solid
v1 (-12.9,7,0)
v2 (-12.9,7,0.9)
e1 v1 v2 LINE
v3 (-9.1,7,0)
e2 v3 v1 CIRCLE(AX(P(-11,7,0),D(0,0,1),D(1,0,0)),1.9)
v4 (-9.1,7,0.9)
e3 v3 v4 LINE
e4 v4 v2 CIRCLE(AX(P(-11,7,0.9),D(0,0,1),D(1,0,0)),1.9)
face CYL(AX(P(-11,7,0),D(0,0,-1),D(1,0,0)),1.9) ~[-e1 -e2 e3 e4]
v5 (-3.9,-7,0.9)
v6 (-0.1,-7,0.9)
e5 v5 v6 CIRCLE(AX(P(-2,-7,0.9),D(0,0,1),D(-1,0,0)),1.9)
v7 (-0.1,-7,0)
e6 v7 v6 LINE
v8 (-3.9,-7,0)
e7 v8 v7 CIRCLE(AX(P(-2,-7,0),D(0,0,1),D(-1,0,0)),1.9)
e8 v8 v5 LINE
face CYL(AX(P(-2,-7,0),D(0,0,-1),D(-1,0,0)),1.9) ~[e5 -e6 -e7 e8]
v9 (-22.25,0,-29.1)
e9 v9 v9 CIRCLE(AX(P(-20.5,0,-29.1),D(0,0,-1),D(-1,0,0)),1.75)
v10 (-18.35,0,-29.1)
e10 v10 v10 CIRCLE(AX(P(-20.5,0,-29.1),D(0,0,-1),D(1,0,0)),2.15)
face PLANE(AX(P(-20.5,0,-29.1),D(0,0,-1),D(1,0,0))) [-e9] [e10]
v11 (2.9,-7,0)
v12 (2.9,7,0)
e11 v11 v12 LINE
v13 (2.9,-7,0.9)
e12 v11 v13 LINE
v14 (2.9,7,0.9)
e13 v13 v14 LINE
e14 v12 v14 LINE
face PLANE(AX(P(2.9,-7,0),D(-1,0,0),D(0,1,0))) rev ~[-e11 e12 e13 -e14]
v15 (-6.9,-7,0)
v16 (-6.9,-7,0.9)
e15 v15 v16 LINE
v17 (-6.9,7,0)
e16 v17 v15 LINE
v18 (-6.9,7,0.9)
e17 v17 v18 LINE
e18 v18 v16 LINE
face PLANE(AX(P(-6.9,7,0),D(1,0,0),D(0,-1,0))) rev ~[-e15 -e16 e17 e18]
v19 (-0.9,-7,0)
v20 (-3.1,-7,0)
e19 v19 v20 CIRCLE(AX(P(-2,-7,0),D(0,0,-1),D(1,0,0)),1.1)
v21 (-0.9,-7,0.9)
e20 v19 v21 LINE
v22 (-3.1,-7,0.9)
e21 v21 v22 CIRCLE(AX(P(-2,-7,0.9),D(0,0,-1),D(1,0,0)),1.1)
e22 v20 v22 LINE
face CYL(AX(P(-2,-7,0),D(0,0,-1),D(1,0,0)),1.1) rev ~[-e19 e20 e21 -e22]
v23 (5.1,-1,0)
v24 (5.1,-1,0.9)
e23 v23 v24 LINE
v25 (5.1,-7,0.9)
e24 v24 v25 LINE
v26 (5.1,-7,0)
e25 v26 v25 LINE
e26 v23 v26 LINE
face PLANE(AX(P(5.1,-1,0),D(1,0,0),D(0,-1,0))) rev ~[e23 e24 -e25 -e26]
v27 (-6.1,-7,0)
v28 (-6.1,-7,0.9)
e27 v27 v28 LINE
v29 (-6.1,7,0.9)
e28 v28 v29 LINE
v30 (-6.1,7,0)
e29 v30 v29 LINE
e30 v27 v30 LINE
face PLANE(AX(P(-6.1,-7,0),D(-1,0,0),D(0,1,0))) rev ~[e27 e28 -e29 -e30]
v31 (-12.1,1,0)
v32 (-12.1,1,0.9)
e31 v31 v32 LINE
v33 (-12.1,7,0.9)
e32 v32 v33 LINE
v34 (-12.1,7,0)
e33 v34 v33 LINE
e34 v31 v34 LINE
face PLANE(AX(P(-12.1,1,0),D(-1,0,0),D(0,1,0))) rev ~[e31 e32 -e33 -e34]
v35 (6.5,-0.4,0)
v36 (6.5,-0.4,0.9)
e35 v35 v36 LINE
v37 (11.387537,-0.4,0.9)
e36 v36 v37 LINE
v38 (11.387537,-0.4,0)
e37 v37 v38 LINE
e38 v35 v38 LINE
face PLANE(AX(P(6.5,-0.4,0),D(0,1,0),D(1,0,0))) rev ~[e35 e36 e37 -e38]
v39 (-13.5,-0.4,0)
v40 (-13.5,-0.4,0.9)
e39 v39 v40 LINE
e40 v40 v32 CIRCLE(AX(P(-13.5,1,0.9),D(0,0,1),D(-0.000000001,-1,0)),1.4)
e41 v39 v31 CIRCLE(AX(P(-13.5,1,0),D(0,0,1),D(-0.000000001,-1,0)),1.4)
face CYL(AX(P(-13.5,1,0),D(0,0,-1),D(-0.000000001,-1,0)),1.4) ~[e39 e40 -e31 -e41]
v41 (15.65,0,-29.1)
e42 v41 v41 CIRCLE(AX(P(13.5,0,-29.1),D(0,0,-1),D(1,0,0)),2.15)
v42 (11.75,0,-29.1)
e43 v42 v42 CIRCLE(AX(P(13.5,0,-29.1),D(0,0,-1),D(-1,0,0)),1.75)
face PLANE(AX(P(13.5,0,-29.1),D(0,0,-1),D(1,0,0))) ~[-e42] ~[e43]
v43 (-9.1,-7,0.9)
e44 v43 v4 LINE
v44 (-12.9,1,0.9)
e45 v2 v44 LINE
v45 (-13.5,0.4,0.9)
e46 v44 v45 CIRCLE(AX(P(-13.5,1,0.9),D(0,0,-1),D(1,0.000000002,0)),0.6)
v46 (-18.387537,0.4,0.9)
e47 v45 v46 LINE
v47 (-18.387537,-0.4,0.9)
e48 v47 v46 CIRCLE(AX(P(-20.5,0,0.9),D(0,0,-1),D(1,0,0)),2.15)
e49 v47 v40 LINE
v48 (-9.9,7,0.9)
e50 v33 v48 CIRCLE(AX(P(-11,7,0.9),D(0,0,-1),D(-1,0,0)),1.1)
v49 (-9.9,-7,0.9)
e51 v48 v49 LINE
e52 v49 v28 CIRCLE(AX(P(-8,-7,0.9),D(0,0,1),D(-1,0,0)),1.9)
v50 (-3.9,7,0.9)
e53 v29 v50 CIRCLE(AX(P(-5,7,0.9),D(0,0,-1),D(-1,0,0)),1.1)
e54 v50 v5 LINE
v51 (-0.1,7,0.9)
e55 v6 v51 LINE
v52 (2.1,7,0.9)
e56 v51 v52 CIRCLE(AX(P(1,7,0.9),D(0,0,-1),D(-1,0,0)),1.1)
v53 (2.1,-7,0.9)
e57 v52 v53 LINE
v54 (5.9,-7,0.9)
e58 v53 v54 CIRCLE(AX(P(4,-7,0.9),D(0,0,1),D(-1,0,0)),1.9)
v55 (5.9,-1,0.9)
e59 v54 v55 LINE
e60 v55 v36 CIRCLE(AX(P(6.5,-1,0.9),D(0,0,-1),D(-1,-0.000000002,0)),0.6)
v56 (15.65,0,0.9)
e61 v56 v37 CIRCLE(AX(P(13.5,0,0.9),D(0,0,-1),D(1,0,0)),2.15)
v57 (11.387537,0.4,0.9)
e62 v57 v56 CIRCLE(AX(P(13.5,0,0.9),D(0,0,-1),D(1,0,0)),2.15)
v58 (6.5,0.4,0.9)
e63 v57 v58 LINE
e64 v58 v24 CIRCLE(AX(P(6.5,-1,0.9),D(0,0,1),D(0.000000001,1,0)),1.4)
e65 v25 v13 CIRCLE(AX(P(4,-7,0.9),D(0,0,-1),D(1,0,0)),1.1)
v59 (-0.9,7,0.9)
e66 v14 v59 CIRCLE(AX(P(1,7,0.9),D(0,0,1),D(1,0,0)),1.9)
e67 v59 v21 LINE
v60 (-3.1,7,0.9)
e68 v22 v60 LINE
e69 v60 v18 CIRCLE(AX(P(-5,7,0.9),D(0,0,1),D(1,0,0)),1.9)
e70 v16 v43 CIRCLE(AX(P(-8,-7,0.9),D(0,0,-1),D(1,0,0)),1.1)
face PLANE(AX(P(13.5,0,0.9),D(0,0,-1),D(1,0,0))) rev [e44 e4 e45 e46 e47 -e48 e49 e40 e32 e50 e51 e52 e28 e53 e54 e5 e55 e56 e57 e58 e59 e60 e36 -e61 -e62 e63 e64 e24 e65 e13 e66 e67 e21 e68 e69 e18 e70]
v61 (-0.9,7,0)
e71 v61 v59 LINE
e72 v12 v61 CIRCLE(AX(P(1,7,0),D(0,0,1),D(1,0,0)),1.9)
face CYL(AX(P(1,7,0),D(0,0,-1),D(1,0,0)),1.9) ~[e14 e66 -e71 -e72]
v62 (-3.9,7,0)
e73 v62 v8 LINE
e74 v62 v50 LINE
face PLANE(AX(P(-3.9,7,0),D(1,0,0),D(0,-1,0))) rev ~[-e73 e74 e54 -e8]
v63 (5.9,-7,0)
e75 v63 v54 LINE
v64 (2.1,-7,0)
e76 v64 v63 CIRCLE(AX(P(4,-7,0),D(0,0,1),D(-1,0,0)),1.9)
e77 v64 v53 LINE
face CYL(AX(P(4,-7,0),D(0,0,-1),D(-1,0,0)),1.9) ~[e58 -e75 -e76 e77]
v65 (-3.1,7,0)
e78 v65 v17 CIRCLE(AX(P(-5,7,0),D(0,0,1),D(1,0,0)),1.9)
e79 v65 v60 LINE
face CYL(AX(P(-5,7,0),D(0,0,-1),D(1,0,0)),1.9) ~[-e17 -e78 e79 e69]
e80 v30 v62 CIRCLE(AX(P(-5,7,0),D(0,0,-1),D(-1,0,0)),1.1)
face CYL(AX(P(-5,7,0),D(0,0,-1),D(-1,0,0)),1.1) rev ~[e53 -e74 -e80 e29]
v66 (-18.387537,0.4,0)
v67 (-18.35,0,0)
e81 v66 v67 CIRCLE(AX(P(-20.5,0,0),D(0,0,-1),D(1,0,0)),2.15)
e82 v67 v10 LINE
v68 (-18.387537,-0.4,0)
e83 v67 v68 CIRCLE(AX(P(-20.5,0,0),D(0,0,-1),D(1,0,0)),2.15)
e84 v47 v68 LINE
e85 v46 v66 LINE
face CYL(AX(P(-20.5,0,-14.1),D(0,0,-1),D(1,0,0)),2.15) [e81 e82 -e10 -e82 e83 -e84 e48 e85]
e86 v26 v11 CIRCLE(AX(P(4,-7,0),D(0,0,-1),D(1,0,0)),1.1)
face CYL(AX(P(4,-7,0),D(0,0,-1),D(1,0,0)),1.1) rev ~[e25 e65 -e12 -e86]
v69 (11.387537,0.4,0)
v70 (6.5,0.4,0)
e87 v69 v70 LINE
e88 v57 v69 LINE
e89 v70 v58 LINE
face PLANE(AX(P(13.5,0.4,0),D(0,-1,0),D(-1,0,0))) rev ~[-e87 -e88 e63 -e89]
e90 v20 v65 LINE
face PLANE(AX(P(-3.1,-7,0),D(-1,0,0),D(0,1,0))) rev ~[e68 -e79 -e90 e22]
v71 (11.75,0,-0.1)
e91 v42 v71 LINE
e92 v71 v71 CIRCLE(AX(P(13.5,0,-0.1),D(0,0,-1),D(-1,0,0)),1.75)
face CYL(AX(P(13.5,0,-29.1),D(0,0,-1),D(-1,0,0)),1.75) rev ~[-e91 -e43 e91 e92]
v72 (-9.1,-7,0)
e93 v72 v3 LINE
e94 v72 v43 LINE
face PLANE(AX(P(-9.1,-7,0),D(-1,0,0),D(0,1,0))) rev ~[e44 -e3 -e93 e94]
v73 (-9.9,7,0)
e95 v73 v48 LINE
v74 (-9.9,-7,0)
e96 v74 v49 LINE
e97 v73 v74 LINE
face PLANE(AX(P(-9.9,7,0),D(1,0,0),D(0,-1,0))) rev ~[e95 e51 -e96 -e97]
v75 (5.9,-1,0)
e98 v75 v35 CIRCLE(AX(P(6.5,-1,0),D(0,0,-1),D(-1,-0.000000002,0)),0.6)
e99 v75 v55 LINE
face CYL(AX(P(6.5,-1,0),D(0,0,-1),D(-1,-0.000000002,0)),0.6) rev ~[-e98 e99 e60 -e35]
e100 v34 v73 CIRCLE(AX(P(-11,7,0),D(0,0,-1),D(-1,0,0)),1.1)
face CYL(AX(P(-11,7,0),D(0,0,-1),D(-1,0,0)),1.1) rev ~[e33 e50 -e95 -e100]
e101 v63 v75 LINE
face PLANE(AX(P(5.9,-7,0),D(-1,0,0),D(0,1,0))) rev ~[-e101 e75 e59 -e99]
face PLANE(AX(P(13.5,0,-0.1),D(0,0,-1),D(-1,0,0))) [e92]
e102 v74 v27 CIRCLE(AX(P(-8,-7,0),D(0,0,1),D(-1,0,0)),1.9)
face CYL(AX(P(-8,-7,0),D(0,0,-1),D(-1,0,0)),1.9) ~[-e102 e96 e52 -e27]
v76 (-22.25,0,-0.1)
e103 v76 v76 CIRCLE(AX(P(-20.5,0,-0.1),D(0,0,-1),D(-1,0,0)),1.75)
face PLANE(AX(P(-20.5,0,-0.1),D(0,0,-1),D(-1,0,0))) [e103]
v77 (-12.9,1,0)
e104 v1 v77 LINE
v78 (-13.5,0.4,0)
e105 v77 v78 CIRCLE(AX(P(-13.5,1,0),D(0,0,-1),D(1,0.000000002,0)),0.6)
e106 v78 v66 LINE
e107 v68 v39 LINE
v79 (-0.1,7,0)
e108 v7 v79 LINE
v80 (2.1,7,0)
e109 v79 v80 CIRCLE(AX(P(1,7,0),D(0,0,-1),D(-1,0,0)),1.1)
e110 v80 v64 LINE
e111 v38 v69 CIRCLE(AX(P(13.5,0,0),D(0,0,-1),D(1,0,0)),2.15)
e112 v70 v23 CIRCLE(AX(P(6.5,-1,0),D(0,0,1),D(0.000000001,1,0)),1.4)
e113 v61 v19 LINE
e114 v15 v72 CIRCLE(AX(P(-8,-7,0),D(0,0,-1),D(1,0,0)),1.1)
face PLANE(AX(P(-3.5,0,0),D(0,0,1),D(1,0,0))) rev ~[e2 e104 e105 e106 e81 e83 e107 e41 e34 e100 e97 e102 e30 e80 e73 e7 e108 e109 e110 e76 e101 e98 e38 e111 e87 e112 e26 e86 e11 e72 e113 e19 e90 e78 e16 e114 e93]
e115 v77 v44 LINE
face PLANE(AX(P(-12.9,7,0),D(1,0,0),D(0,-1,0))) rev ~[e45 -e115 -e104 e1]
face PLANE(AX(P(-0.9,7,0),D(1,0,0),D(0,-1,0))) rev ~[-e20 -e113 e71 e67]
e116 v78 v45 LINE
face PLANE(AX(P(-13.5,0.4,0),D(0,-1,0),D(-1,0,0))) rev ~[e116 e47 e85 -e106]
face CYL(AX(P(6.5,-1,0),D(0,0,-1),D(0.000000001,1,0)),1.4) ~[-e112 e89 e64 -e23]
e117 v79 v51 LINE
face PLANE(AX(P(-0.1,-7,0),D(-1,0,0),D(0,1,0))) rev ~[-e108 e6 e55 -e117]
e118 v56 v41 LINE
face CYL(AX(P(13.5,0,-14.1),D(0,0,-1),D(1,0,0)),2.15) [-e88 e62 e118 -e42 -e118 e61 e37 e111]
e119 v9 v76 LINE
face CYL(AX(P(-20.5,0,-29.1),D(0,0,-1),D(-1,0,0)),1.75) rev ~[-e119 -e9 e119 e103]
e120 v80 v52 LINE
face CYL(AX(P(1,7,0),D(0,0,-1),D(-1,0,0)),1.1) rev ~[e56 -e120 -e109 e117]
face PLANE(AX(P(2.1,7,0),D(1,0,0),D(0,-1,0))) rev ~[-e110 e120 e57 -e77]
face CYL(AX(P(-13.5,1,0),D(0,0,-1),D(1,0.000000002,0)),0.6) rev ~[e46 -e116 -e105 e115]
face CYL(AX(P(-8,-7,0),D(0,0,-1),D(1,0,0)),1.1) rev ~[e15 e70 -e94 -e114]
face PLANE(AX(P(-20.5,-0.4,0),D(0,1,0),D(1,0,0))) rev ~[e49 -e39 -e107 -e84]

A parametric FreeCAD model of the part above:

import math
import FreeCAD as App
import Part
import Sketcher
from FreeCAD import Vector

doc = App.newDocument("Part")
body = doc.addObject("PartDesign::Body", "Body")

# Sketch on XY plane
sketch1 = doc.addObject("Sketcher::SketchObject", "Sketch")
body.addObject(sketch1)
sketch1.AttachmentSupport = (doc.XY_Plane, [""])
sketch1.MapMode = "FlatFace"
sketch1.addGeometry([
    Part.LineSegment(Vector(-20.5, -0.4, 0), Vector(-13.5, -0.4, 0)),  # 0
    Part.ArcOfCircle(Part.Circle(Vector(-13.5, 1, 0), Vector(0, 0, 1), 1.4), math.radians(-90), math.radians(0)),  # 1
    Part.LineSegment(Vector(-12.1, 1, 0), Vector(-12.1, 7, 0)),  # 2
    Part.ArcOfCircle(Part.Circle(Vector(-11, 7, 0), Vector(0, 0, 1), 1.1), math.radians(0), math.radians(180)),  # 3
    Part.LineSegment(Vector(-9.9, 7, 0), Vector(-9.9, -7, 0)),  # 4
    Part.ArcOfCircle(Part.Circle(Vector(-8, -7, 0), Vector(0, 0, 1), 1.9), math.radians(180), math.radians(360)),  # 5
    Part.LineSegment(Vector(-6.1, -7, 0), Vector(-6.1, 7, 0)),  # 6
    Part.ArcOfCircle(Part.Circle(Vector(-5, 7, 0), Vector(0, 0, 1), 1.1), math.radians(0), math.radians(180)),  # 7
    Part.LineSegment(Vector(-3.9, 7, 0), Vector(-3.9, -7, 0)),  # 8
    Part.ArcOfCircle(Part.Circle(Vector(-2, -7, 0), Vector(0, 0, 1), 1.9), math.radians(180), math.radians(360)),  # 9
    Part.LineSegment(Vector(-0.1, -7, 0), Vector(-0.1, 7, 0)),  # 10
    Part.ArcOfCircle(Part.Circle(Vector(1, 7, 0), Vector(0, 0, 1), 1.1), math.radians(0), math.radians(180)),  # 11
    Part.LineSegment(Vector(2.1, 7, 0), Vector(2.1, -7, 0)),  # 12
    Part.ArcOfCircle(Part.Circle(Vector(4, -7, 0), Vector(0, 0, 1), 1.9), math.radians(180), math.radians(360)),  # 13
    Part.LineSegment(Vector(5.9, -7, 0), Vector(5.9, -1, 0)),  # 14
    Part.ArcOfCircle(Part.Circle(Vector(6.5, -1, 0), Vector(0, 0, 1), 0.6), math.radians(90), math.radians(180)),  # 15
    Part.LineSegment(Vector(6.5, -0.4, 0), Vector(13.5, -0.4, 0)),  # 16
    Part.ArcOfCircle(Part.Circle(Vector(13.5, 0, 0), Vector(0, 0, 1), 0.4), math.radians(-90), math.radians(90)),  # 17
    Part.LineSegment(Vector(13.5, 0.4, 0), Vector(6.5, 0.4, 0)),  # 18
    Part.ArcOfCircle(Part.Circle(Vector(6.5, -1, 0), Vector(0, 0, 1), 1.4), math.radians(90), math.radians(180)),  # 19
    Part.LineSegment(Vector(5.1, -1, 0), Vector(5.1, -7, 0)),  # 20
    Part.ArcOfCircle(Part.Circle(Vector(4, -7, 0), Vector(0, 0, 1), 1.1), math.radians(180), math.radians(360)),  # 21
    Part.LineSegment(Vector(2.9, -7, 0), Vector(2.9, 7, 0)),  # 22
    Part.ArcOfCircle(Part.Circle(Vector(1, 7, 0), Vector(0, 0, 1), 1.9), math.radians(0), math.radians(180)),  # 23
    Part.LineSegment(Vector(-0.9, 7, 0), Vector(-0.9, -7, 0)),  # 24
    Part.ArcOfCircle(Part.Circle(Vector(-2, -7, 0), Vector(0, 0, 1), 1.1), math.radians(180), math.radians(360)),  # 25
    Part.LineSegment(Vector(-3.1, -7, 0), Vector(-3.1, 7, 0)),  # 26
    Part.ArcOfCircle(Part.Circle(Vector(-5, 7, 0), Vector(0, 0, 1), 1.9), math.radians(0), math.radians(180)),  # 27
    Part.LineSegment(Vector(-6.9, 7, 0), Vector(-6.9, -7, 0)),  # 28
    Part.ArcOfCircle(Part.Circle(Vector(-8, -7, 0), Vector(0, 0, 1), 1.1), math.radians(180), math.radians(360)),  # 29
    Part.LineSegment(Vector(-9.1, -7, 0), Vector(-9.1, 7, 0)),  # 30
    Part.ArcOfCircle(Part.Circle(Vector(-11, 7, 0), Vector(0, 0, 1), 1.9), math.radians(0), math.radians(180)),  # 31
    Part.LineSegment(Vector(-12.9, 7, 0), Vector(-12.9, 1, 0)),  # 32
    Part.ArcOfCircle(Part.Circle(Vector(-13.5, 1, 0), Vector(0, 0, 1), 0.6), math.radians(-90), math.radians(0)),  # 33
    Part.LineSegment(Vector(-13.5, 0.4, 0), Vector(-20.5, 0.4, 0)),  # 34
    Part.ArcOfCircle(Part.Circle(Vector(-20.5, 0, 0), Vector(0, 0, 1), 0.4), math.radians(90), math.radians(270)),  # 35
], False)
sketch1.addConstraint([
    Sketcher.Constraint("Tangent", 0, 2, 1, 1),
    Sketcher.Constraint("Tangent", 1, 2, 2, 1),
    Sketcher.Constraint("Tangent", 2, 2, 3, 2),
    Sketcher.Constraint("Tangent", 3, 1, 4, 1),
    Sketcher.Constraint("Tangent", 4, 2, 5, 1),
    Sketcher.Constraint("Tangent", 5, 2, 6, 1),
    Sketcher.Constraint("Tangent", 6, 2, 7, 2),
    Sketcher.Constraint("Tangent", 7, 1, 8, 1),
    Sketcher.Constraint("Tangent", 8, 2, 9, 1),
    Sketcher.Constraint("Tangent", 9, 2, 10, 1),
    Sketcher.Constraint("Tangent", 10, 2, 11, 2),
    Sketcher.Constraint("Tangent", 11, 1, 12, 1),
    Sketcher.Constraint("Tangent", 12, 2, 13, 1),
    Sketcher.Constraint("Tangent", 13, 2, 14, 1),
    Sketcher.Constraint("Tangent", 14, 2, 15, 2),
    Sketcher.Constraint("Tangent", 15, 1, 16, 1),
    Sketcher.Constraint("Tangent", 16, 2, 17, 1),
    Sketcher.Constraint("Tangent", 17, 2, 18, 1),
    Sketcher.Constraint("Tangent", 18, 2, 19, 1),
    Sketcher.Constraint("Tangent", 19, 2, 20, 1),
    Sketcher.Constraint("Tangent", 20, 2, 21, 2),
    Sketcher.Constraint("Tangent", 21, 1, 22, 1),
    Sketcher.Constraint("Tangent", 22, 2, 23, 1),
    Sketcher.Constraint("Tangent", 23, 2, 24, 1),
    Sketcher.Constraint("Tangent", 24, 2, 25, 2),
    Sketcher.Constraint("Tangent", 25, 1, 26, 1),
    Sketcher.Constraint("Tangent", 26, 2, 27, 1),
    Sketcher.Constraint("Tangent", 27, 2, 28, 1),
    Sketcher.Constraint("Tangent", 28, 2, 29, 2),
    Sketcher.Constraint("Tangent", 29, 1, 30, 1),
    Sketcher.Constraint("Tangent", 30, 2, 31, 1),
    Sketcher.Constraint("Tangent", 31, 2, 32, 1),
    Sketcher.Constraint("Tangent", 32, 2, 33, 2),
    Sketcher.Constraint("Tangent", 33, 1, 34, 1),
    Sketcher.Constraint("Tangent", 34, 2, 35, 1),
    Sketcher.Constraint("Tangent", 35, 2, 0, 1),
    Sketcher.Constraint("Horizontal", 0),
    Sketcher.Constraint("Vertical", 2),
    Sketcher.Constraint("Vertical", 4),
    Sketcher.Constraint("Vertical", 6),
    Sketcher.Constraint("Vertical", 8),
    Sketcher.Constraint("Vertical", 10),
    Sketcher.Constraint("Vertical", 12),
    Sketcher.Constraint("Vertical", 14),
    Sketcher.Constraint("Horizontal", 16),
    Sketcher.Constraint("Horizontal", 18),
    Sketcher.Constraint("Vertical", 20),
    Sketcher.Constraint("Vertical", 22),
    Sketcher.Constraint("Vertical", 24),
    Sketcher.Constraint("Vertical", 26),
    Sketcher.Constraint("Vertical", 28),
    Sketcher.Constraint("Vertical", 30),
    Sketcher.Constraint("Vertical", 32),
    Sketcher.Constraint("Horizontal", 34),
    Sketcher.Constraint("Coincident", 19, 3, 15, 3),
    Sketcher.Constraint("Coincident", 21, 3, 13, 3),
    Sketcher.Constraint("Coincident", 23, 3, 11, 3),
    Sketcher.Constraint("Coincident", 25, 3, 9, 3),
    Sketcher.Constraint("Coincident", 27, 3, 7, 3),
    Sketcher.Constraint("Coincident", 29, 3, 5, 3),
    Sketcher.Constraint("Coincident", 31, 3, 3, 3),
    Sketcher.Constraint("Coincident", 33, 3, 1, 3),
    Sketcher.Constraint("Equal", 3, 7),
    Sketcher.Constraint("Equal", 5, 9),
    Sketcher.Constraint("Equal", 7, 11),
    Sketcher.Constraint("Equal", 9, 13),
    Sketcher.Constraint("Equal", 1, 19),
    Sketcher.Constraint("Equal", 11, 21),
    Sketcher.Constraint("Symmetric", 0, 2, 17, 2, -1, 1),
    Sketcher.Constraint("PointOnObject", 17, 3, -1),
    Sketcher.Constraint("Horizontal", 3, 3, 7, 3),
    Sketcher.Constraint("Horizontal", 5, 3, 9, 3),
    Sketcher.Constraint("Horizontal", 7, 3, 11, 3),
    Sketcher.Constraint("Horizontal", 9, 3, 13, 3),
    Sketcher.Constraint("Equal", 0, 16),
    Sketcher.Constraint("Equal", 2, 14),
    Sketcher.Constraint("Radius", 1, 1.4),
    Sketcher.Constraint("Radius", 3, 1.1),
    Sketcher.Constraint("Radius", 5, 1.9),
    Sketcher.Constraint("DistanceX", 0, 1, 0, 2, 7.0),
    Sketcher.Constraint("DistanceY", 2, 1, 2, 2, 6.0),
])
pad1 = doc.addObject("PartDesign::Pad", "Pad")
body.addObject(pad1)
pad1.Profile = sketch1
pad1.Length = 0.9

# Sketch on XZ plane
sketch2 = doc.addObject("Sketcher::SketchObject", "Sketch001")
body.addObject(sketch2)
sketch2.AttachmentSupport = (doc.XZ_Plane, [""])
sketch2.MapMode = "FlatFace"
sketch2.addGeometry([
    Part.LineSegment(Vector(-22.65, -29.1, 0), Vector(-22.65, 0.9, 0)),
    Part.LineSegment(Vector(-22.65, 0.9, 0), Vector(-20.5, 0.9, 0)),
    Part.LineSegment(Vector(-20.5, 0.9, 0), Vector(-20.5, -29.1, 0)),
    Part.LineSegment(Vector(-20.5, -29.1, 0), Vector(-22.65, -29.1, 0)),
], False)
sketch2.addGeometry(Part.LineSegment(Vector(-20.5, 0.9, 0), Vector(-20.5, -29.1, 0)), True)  # axis
sketch2.addConstraint([
    Sketcher.Constraint("Coincident", 0, 2, 1, 1),
    Sketcher.Constraint("Coincident", 1, 2, 2, 1),
    Sketcher.Constraint("Coincident", 2, 2, 3, 1),
    Sketcher.Constraint("Coincident", 3, 2, 0, 1),
    Sketcher.Constraint("Vertical", 0),
    Sketcher.Constraint("Horizontal", 1),
    Sketcher.Constraint("Vertical", 2),
    Sketcher.Constraint("Horizontal", 3),
    Sketcher.Constraint("Vertical", 4),
    Sketcher.Constraint("Coincident", 4, 1, 1, 2),
    Sketcher.Constraint("Horizontal", 3, 2, 4, 2),
    Sketcher.Constraint("DistanceY", 0, 1, 0, 2, 30.0),
    Sketcher.Constraint("DistanceX", 1, 1, 1, 2, 2.15),
    Sketcher.Constraint("DistanceY", -1, 1, 0, 2, 0.9),
    Sketcher.Constraint("DistanceX", 1, 2, -1, 1, 20.5),
])
revolution = doc.addObject("PartDesign::Revolution", "Revolution")
body.addObject(revolution)
revolution.Profile = sketch2
revolution.ReferenceAxis = (sketch2, ["Axis0"])
revolution.Angle = 360

# Sketch on XZ plane
sketch3 = doc.addObject("Sketcher::SketchObject", "Sketch002")
body.addObject(sketch3)
sketch3.AttachmentSupport = (doc.XZ_Plane, [""])
sketch3.MapMode = "FlatFace"
sketch3.addGeometry([
    Part.LineSegment(Vector(13.5, -29.1, 0), Vector(13.5, 0.9, 0)),
    Part.LineSegment(Vector(13.5, 0.9, 0), Vector(15.65, 0.9, 0)),
    Part.LineSegment(Vector(15.65, 0.9, 0), Vector(15.65, -29.1, 0)),
    Part.LineSegment(Vector(15.65, -29.1, 0), Vector(13.5, -29.1, 0)),
], False)
sketch3.addGeometry(Part.LineSegment(Vector(13.5, 0.9, 0), Vector(13.5, -29.1, 0)), True)  # axis
sketch3.addConstraint([
    Sketcher.Constraint("Coincident", 0, 2, 1, 1),
    Sketcher.Constraint("Coincident", 1, 2, 2, 1),
    Sketcher.Constraint("Coincident", 2, 2, 3, 1),
    Sketcher.Constraint("Coincident", 3, 2, 0, 1),
    Sketcher.Constraint("Vertical", 0),
    Sketcher.Constraint("Horizontal", 1),
    Sketcher.Constraint("Vertical", 2),
    Sketcher.Constraint("Horizontal", 3),
    Sketcher.Constraint("Vertical", 4),
    Sketcher.Constraint("Coincident", 4, 1, 0, 2),
    Sketcher.Constraint("Horizontal", 2, 2, 4, 2),
    Sketcher.Constraint("DistanceY", 0, 1, 0, 2, 30.0),
    Sketcher.Constraint("DistanceX", 1, 1, 1, 2, 2.15),
    Sketcher.Constraint("DistanceX", -1, 1, 0, 2, 13.5),
    Sketcher.Constraint("DistanceY", -1, 1, 0, 2, 0.9),
])
revolution2 = doc.addObject("PartDesign::Revolution", "Revolution001")
body.addObject(revolution2)
revolution2.Profile = sketch3
revolution2.ReferenceAxis = (sketch3, ["Axis0"])
revolution2.Angle = 360

# Sketch on XY plane
sketch4 = doc.addObject("Sketcher::SketchObject", "Sketch003")
body.addObject(sketch4)
sketch4.AttachmentSupport = (doc.XY_Plane, [""])
sketch4.MapMode = "FlatFace"
sketch4.AttachmentOffset = App.Placement(Vector(0, 0, -29.1), App.Rotation())
sketch4.addGeometry([
    Part.Circle(Vector(13.5, 0, 0), Vector(0, 0, 1), 1.75),
    Part.Circle(Vector(-20.5, 0, 0), Vector(0, 0, 1), 1.75),
], False)
sketch4.addConstraint([
    Sketcher.Constraint("Equal", 0, 1),
    Sketcher.Constraint("PointOnObject", 0, 3, -1),
    Sketcher.Constraint("PointOnObject", 1, 3, -1),
    Sketcher.Constraint("Diameter", 0, 3.5),
    Sketcher.Constraint("DistanceX", 1, 3, 0, 3, 34.0),
    Sketcher.Constraint("DistanceX", -1, 1, 0, 3, 13.5),
])
pocket1 = doc.addObject("PartDesign::Pocket", "Pocket")
body.addObject(pocket1)
pocket1.Profile = sketch4
pocket1.Length = 29
pocket1.Reversed = True

doc.recompute()
